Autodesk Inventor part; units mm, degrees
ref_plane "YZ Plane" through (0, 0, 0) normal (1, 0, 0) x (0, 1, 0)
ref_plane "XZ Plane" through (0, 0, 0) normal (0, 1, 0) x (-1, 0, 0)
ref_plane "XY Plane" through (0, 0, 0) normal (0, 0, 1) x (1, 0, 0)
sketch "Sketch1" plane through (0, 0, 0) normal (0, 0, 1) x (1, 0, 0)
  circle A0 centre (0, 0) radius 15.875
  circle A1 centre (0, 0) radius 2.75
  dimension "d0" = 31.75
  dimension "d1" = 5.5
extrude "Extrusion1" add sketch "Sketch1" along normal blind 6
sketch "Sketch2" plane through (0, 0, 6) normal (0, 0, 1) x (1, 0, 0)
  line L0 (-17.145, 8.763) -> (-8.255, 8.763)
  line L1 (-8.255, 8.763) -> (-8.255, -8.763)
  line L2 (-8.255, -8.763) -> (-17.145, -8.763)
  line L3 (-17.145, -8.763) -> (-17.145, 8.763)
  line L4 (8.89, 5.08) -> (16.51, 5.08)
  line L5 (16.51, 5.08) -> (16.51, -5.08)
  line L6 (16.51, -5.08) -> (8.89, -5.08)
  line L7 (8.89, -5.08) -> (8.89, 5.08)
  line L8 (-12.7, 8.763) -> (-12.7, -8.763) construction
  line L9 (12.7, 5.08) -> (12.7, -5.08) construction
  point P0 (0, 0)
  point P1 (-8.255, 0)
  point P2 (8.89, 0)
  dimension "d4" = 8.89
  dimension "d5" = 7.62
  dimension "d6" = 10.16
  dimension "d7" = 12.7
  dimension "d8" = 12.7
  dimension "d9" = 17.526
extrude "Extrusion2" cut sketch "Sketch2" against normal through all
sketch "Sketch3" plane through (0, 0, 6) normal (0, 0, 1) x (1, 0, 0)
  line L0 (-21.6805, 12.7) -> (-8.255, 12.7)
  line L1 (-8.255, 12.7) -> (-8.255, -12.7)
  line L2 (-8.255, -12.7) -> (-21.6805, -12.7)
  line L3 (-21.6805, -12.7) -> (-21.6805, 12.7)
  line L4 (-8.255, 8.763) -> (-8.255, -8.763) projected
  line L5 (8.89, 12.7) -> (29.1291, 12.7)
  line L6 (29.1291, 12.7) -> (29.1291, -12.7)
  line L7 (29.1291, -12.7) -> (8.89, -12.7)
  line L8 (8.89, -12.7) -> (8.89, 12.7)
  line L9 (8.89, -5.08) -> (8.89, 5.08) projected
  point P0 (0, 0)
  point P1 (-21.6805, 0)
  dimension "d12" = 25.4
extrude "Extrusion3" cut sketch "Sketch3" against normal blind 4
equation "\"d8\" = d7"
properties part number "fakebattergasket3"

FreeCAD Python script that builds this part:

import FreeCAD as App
import Part
import Sketcher

V = App.Vector
Q = App.Units.Quantity

doc = App.newDocument("Part")
body = doc.addObject("PartDesign::Body", "Body")

sketch1 = body.newObject("Sketcher::SketchObject", "Sketch")
sketch1.AttachmentSupport = (doc.getObject("XY_Plane"), [""])
sketch1.MapMode = "FlatFace"
sketch1.addGeometry(Part.Circle(V(0, 0, 0), V(0, 0, 1), 15.9), False)
sketch1.addGeometry(Part.Circle(V(0, 0, 0), V(0, 0, 1), 2.8), False)
sketch1.addConstraint(Sketcher.Constraint("Coincident", 0, 3, -1, 1))
sketch1.addConstraint(Sketcher.Constraint("Coincident", 1, 3, -1, 1))
sketch1.addConstraint(Sketcher.Constraint("Diameter", 0, Q("1.25 in")))
sketch1.addConstraint(Sketcher.Constraint("Diameter", 1, Q("5.5 mm")))
pad1 = body.newObject("PartDesign::Pad", "Pad")
pad1.Profile = sketch1
pad1.Length = 6

sketch2 = body.newObject("Sketcher::SketchObject", "Sketch001")
sketch2.AttachmentSupport = (doc.getObject("XY_Plane"), [""])
sketch2.MapMode = "FlatFace"
sketch2.AttachmentOffset = App.Placement(V(0, 0, 6), App.Rotation())
sketch2.addGeometry(Part.LineSegment(V(-8, 9, 0), V(-17, 9, 0)), False)
sketch2.addGeometry(Part.LineSegment(V(-17, 9, 0), V(-17, -9, 0)), False)
sketch2.addGeometry(Part.LineSegment(V(-17, -9, 0), V(-8, -9, 0)), False)
sketch2.addGeometry(Part.LineSegment(V(-8, -9, 0), V(-8, 9, 0)), False)
sketch2.addGeometry(Part.LineSegment(V(17, 5, 0), V(9, 5, 0)), False)
sketch2.addGeometry(Part.LineSegment(V(9, 5, 0), V(9, -5, 0)), False)
sketch2.addGeometry(Part.LineSegment(V(9, -5, 0), V(17, -5, 0)), False)
sketch2.addGeometry(Part.LineSegment(V(17, -5, 0), V(17, 5, 0)), False)
sketch2.addConstraint(Sketcher.Constraint("Coincident", 0, 2, 1, 1))
sketch2.addConstraint(Sketcher.Constraint("Coincident", 1, 2, 2, 1))
sketch2.addConstraint(Sketcher.Constraint("Coincident", 2, 2, 3, 1))
sketch2.addConstraint(Sketcher.Constraint("Coincident", 3, 2, 0, 1))
sketch2.addConstraint(Sketcher.Constraint("Coincident", 4, 2, 5, 1))
sketch2.addConstraint(Sketcher.Constraint("Coincident", 5, 2, 6, 1))
sketch2.addConstraint(Sketcher.Constraint("Coincident", 6, 2, 7, 1))
sketch2.addConstraint(Sketcher.Constraint("Coincident", 7, 2, 4, 1))
sketch2.addConstraint(Sketcher.Constraint("Horizontal", 0))
sketch2.addConstraint(Sketcher.Constraint("Vertical", 1))
sketch2.addConstraint(Sketcher.Constraint("Horizontal", 2))
sketch2.addConstraint(Sketcher.Constraint("Vertical", 3))
sketch2.addConstraint(Sketcher.Constraint("Horizontal", 4))
sketch2.addConstraint(Sketcher.Constraint("Vertical", 5))
sketch2.addConstraint(Sketcher.Constraint("Horizontal", 6))
sketch2.addConstraint(Sketcher.Constraint("Vertical", 7))
sketch2.addConstraint(Sketcher.Constraint("DistanceX", 4, 2, 4, 1, Q("0.3 in")))
sketch2.addConstraint(Sketcher.Constraint("DistanceY", 5, 2, 5, 1, Q("0.4 in")))
sketch2.addConstraint(Sketcher.Constraint("DistanceX", 0, 2, 0, 1, Q("0.35 in")))
sketch2.addConstraint(Sketcher.Constraint("DistanceY", 1, 2, 1, 1, Q("0.69 in")))
sketch2.addConstraint(Sketcher.Constraint("DistanceX", -1, 1, 4, 2, Q("0.35 in")))
sketch2.addConstraint(Sketcher.Constraint("DistanceY", -1, 1, 4, 2, Q("0.2 in")))
sketch2.addConstraint(Sketcher.Constraint("DistanceX", 0, 2, -1, 1, Q("0.675 in")))
sketch2.addConstraint(Sketcher.Constraint("DistanceY", -1, 1, 0, 2, Q("0.345 in")))
pocket1 = body.newObject("PartDesign::Pocket", "Pocket")
pocket1.Profile = sketch2
pocket1.Type = "ThroughAll"

sketch3 = body.newObject("Sketcher::SketchObject", "Sketch002")
sketch3.AttachmentSupport = (doc.getObject("XY_Plane"), [""])
sketch3.MapMode = "FlatFace"
sketch3.AttachmentOffset = App.Placement(V(0, 0, 6), App.Rotation())
sketch3.addGeometry(Part.LineSegment(V(-8, 13, 0), V(-22, 13, 0)), False)
sketch3.addGeometry(Part.LineSegment(V(-22, 13, 0), V(-22, -13, 0)), False)
sketch3.addGeometry(Part.LineSegment(V(-22, -13, 0), V(-8, -13, 0)), False)
sketch3.addGeometry(Part.LineSegment(V(-8, -13, 0), V(-8, 13, 0)), False)
sketch3.addGeometry(Part.LineSegment(V(29, 13, 0), V(9, 13, 0)), False)
sketch3.addGeometry(Part.LineSegment(V(9, 13, 0), V(9, -13, 0)), False)
sketch3.addGeometry(Part.LineSegment(V(9, -13, 0), V(29, -13, 0)), False)
sketch3.addGeometry(Part.LineSegment(V(29, -13, 0), V(29, 13, 0)), False)
sketch3.addConstraint(Sketcher.Constraint("Coincident", 0, 2, 1, 1))
sketch3.addConstraint(Sketcher.Constraint("Coincident", 1, 2, 2, 1))
sketch3.addConstraint(Sketcher.Constraint("Coincident", 2, 2, 3, 1))
sketch3.addConstraint(Sketcher.Constraint("Coincident", 3, 2, 0, 1))
sketch3.addConstraint(Sketcher.Constraint("Coincident", 4, 2, 5, 1))
sketch3.addConstraint(Sketcher.Constraint("Coincident", 5, 2, 6, 1))
sketch3.addConstraint(Sketcher.Constraint("Coincident", 6, 2, 7, 1))
sketch3.addConstraint(Sketcher.Constraint("Coincident", 7, 2, 4, 1))
sketch3.addConstraint(Sketcher.Constraint("Horizontal", 0))
sketch3.addConstraint(Sketcher.Constraint("Vertical", 1))
sketch3.addConstraint(Sketcher.Constraint("Horizontal", 2))
sketch3.addConstraint(Sketcher.Constraint("Vertical", 3))
sketch3.addConstraint(Sketcher.Constraint("Horizontal", 4))
sketch3.addConstraint(Sketcher.Constraint("Vertical", 5))
sketch3.addConstraint(Sketcher.Constraint("Horizontal", 6))
sketch3.addConstraint(Sketcher.Constraint("Vertical", 7))
sketch3.addConstraint(Sketcher.Constraint("Horizontal", 3, 2, 4, 2))
sketch3.addConstraint(Sketcher.Constraint("Horizontal", 2, 2, 5, 2))
sketch3.addConstraint(Sketcher.Constraint("DistanceY", 1, 2, 1, 1, Q("1 in")))
sketch3.addConstraint(Sketcher.Constraint("DistanceY", -1, 1, 0, 2, Q("0.5 in")))
sketch3.addConstraint(Sketcher.Constraint("DistanceX", -1, 1, 4, 2, Q("0.35 in")))
sketch3.addConstraint(Sketcher.Constraint("DistanceX", 2, 2, -1, 1, Q("0.325 in")))
sketch3.addConstraint(Sketcher.Constraint("DistanceX", 0, 2, 0, 1, Q("13.4255 mm")))
sketch3.addConstraint(Sketcher.Constraint("DistanceX", 4, 2, 4, 1, Q("0.796811 in")))
pocket2 = body.newObject("PartDesign::Pocket", "Pocket001")
pocket2.Profile = sketch3
pocket2.Length = 4

doc.recompute()
